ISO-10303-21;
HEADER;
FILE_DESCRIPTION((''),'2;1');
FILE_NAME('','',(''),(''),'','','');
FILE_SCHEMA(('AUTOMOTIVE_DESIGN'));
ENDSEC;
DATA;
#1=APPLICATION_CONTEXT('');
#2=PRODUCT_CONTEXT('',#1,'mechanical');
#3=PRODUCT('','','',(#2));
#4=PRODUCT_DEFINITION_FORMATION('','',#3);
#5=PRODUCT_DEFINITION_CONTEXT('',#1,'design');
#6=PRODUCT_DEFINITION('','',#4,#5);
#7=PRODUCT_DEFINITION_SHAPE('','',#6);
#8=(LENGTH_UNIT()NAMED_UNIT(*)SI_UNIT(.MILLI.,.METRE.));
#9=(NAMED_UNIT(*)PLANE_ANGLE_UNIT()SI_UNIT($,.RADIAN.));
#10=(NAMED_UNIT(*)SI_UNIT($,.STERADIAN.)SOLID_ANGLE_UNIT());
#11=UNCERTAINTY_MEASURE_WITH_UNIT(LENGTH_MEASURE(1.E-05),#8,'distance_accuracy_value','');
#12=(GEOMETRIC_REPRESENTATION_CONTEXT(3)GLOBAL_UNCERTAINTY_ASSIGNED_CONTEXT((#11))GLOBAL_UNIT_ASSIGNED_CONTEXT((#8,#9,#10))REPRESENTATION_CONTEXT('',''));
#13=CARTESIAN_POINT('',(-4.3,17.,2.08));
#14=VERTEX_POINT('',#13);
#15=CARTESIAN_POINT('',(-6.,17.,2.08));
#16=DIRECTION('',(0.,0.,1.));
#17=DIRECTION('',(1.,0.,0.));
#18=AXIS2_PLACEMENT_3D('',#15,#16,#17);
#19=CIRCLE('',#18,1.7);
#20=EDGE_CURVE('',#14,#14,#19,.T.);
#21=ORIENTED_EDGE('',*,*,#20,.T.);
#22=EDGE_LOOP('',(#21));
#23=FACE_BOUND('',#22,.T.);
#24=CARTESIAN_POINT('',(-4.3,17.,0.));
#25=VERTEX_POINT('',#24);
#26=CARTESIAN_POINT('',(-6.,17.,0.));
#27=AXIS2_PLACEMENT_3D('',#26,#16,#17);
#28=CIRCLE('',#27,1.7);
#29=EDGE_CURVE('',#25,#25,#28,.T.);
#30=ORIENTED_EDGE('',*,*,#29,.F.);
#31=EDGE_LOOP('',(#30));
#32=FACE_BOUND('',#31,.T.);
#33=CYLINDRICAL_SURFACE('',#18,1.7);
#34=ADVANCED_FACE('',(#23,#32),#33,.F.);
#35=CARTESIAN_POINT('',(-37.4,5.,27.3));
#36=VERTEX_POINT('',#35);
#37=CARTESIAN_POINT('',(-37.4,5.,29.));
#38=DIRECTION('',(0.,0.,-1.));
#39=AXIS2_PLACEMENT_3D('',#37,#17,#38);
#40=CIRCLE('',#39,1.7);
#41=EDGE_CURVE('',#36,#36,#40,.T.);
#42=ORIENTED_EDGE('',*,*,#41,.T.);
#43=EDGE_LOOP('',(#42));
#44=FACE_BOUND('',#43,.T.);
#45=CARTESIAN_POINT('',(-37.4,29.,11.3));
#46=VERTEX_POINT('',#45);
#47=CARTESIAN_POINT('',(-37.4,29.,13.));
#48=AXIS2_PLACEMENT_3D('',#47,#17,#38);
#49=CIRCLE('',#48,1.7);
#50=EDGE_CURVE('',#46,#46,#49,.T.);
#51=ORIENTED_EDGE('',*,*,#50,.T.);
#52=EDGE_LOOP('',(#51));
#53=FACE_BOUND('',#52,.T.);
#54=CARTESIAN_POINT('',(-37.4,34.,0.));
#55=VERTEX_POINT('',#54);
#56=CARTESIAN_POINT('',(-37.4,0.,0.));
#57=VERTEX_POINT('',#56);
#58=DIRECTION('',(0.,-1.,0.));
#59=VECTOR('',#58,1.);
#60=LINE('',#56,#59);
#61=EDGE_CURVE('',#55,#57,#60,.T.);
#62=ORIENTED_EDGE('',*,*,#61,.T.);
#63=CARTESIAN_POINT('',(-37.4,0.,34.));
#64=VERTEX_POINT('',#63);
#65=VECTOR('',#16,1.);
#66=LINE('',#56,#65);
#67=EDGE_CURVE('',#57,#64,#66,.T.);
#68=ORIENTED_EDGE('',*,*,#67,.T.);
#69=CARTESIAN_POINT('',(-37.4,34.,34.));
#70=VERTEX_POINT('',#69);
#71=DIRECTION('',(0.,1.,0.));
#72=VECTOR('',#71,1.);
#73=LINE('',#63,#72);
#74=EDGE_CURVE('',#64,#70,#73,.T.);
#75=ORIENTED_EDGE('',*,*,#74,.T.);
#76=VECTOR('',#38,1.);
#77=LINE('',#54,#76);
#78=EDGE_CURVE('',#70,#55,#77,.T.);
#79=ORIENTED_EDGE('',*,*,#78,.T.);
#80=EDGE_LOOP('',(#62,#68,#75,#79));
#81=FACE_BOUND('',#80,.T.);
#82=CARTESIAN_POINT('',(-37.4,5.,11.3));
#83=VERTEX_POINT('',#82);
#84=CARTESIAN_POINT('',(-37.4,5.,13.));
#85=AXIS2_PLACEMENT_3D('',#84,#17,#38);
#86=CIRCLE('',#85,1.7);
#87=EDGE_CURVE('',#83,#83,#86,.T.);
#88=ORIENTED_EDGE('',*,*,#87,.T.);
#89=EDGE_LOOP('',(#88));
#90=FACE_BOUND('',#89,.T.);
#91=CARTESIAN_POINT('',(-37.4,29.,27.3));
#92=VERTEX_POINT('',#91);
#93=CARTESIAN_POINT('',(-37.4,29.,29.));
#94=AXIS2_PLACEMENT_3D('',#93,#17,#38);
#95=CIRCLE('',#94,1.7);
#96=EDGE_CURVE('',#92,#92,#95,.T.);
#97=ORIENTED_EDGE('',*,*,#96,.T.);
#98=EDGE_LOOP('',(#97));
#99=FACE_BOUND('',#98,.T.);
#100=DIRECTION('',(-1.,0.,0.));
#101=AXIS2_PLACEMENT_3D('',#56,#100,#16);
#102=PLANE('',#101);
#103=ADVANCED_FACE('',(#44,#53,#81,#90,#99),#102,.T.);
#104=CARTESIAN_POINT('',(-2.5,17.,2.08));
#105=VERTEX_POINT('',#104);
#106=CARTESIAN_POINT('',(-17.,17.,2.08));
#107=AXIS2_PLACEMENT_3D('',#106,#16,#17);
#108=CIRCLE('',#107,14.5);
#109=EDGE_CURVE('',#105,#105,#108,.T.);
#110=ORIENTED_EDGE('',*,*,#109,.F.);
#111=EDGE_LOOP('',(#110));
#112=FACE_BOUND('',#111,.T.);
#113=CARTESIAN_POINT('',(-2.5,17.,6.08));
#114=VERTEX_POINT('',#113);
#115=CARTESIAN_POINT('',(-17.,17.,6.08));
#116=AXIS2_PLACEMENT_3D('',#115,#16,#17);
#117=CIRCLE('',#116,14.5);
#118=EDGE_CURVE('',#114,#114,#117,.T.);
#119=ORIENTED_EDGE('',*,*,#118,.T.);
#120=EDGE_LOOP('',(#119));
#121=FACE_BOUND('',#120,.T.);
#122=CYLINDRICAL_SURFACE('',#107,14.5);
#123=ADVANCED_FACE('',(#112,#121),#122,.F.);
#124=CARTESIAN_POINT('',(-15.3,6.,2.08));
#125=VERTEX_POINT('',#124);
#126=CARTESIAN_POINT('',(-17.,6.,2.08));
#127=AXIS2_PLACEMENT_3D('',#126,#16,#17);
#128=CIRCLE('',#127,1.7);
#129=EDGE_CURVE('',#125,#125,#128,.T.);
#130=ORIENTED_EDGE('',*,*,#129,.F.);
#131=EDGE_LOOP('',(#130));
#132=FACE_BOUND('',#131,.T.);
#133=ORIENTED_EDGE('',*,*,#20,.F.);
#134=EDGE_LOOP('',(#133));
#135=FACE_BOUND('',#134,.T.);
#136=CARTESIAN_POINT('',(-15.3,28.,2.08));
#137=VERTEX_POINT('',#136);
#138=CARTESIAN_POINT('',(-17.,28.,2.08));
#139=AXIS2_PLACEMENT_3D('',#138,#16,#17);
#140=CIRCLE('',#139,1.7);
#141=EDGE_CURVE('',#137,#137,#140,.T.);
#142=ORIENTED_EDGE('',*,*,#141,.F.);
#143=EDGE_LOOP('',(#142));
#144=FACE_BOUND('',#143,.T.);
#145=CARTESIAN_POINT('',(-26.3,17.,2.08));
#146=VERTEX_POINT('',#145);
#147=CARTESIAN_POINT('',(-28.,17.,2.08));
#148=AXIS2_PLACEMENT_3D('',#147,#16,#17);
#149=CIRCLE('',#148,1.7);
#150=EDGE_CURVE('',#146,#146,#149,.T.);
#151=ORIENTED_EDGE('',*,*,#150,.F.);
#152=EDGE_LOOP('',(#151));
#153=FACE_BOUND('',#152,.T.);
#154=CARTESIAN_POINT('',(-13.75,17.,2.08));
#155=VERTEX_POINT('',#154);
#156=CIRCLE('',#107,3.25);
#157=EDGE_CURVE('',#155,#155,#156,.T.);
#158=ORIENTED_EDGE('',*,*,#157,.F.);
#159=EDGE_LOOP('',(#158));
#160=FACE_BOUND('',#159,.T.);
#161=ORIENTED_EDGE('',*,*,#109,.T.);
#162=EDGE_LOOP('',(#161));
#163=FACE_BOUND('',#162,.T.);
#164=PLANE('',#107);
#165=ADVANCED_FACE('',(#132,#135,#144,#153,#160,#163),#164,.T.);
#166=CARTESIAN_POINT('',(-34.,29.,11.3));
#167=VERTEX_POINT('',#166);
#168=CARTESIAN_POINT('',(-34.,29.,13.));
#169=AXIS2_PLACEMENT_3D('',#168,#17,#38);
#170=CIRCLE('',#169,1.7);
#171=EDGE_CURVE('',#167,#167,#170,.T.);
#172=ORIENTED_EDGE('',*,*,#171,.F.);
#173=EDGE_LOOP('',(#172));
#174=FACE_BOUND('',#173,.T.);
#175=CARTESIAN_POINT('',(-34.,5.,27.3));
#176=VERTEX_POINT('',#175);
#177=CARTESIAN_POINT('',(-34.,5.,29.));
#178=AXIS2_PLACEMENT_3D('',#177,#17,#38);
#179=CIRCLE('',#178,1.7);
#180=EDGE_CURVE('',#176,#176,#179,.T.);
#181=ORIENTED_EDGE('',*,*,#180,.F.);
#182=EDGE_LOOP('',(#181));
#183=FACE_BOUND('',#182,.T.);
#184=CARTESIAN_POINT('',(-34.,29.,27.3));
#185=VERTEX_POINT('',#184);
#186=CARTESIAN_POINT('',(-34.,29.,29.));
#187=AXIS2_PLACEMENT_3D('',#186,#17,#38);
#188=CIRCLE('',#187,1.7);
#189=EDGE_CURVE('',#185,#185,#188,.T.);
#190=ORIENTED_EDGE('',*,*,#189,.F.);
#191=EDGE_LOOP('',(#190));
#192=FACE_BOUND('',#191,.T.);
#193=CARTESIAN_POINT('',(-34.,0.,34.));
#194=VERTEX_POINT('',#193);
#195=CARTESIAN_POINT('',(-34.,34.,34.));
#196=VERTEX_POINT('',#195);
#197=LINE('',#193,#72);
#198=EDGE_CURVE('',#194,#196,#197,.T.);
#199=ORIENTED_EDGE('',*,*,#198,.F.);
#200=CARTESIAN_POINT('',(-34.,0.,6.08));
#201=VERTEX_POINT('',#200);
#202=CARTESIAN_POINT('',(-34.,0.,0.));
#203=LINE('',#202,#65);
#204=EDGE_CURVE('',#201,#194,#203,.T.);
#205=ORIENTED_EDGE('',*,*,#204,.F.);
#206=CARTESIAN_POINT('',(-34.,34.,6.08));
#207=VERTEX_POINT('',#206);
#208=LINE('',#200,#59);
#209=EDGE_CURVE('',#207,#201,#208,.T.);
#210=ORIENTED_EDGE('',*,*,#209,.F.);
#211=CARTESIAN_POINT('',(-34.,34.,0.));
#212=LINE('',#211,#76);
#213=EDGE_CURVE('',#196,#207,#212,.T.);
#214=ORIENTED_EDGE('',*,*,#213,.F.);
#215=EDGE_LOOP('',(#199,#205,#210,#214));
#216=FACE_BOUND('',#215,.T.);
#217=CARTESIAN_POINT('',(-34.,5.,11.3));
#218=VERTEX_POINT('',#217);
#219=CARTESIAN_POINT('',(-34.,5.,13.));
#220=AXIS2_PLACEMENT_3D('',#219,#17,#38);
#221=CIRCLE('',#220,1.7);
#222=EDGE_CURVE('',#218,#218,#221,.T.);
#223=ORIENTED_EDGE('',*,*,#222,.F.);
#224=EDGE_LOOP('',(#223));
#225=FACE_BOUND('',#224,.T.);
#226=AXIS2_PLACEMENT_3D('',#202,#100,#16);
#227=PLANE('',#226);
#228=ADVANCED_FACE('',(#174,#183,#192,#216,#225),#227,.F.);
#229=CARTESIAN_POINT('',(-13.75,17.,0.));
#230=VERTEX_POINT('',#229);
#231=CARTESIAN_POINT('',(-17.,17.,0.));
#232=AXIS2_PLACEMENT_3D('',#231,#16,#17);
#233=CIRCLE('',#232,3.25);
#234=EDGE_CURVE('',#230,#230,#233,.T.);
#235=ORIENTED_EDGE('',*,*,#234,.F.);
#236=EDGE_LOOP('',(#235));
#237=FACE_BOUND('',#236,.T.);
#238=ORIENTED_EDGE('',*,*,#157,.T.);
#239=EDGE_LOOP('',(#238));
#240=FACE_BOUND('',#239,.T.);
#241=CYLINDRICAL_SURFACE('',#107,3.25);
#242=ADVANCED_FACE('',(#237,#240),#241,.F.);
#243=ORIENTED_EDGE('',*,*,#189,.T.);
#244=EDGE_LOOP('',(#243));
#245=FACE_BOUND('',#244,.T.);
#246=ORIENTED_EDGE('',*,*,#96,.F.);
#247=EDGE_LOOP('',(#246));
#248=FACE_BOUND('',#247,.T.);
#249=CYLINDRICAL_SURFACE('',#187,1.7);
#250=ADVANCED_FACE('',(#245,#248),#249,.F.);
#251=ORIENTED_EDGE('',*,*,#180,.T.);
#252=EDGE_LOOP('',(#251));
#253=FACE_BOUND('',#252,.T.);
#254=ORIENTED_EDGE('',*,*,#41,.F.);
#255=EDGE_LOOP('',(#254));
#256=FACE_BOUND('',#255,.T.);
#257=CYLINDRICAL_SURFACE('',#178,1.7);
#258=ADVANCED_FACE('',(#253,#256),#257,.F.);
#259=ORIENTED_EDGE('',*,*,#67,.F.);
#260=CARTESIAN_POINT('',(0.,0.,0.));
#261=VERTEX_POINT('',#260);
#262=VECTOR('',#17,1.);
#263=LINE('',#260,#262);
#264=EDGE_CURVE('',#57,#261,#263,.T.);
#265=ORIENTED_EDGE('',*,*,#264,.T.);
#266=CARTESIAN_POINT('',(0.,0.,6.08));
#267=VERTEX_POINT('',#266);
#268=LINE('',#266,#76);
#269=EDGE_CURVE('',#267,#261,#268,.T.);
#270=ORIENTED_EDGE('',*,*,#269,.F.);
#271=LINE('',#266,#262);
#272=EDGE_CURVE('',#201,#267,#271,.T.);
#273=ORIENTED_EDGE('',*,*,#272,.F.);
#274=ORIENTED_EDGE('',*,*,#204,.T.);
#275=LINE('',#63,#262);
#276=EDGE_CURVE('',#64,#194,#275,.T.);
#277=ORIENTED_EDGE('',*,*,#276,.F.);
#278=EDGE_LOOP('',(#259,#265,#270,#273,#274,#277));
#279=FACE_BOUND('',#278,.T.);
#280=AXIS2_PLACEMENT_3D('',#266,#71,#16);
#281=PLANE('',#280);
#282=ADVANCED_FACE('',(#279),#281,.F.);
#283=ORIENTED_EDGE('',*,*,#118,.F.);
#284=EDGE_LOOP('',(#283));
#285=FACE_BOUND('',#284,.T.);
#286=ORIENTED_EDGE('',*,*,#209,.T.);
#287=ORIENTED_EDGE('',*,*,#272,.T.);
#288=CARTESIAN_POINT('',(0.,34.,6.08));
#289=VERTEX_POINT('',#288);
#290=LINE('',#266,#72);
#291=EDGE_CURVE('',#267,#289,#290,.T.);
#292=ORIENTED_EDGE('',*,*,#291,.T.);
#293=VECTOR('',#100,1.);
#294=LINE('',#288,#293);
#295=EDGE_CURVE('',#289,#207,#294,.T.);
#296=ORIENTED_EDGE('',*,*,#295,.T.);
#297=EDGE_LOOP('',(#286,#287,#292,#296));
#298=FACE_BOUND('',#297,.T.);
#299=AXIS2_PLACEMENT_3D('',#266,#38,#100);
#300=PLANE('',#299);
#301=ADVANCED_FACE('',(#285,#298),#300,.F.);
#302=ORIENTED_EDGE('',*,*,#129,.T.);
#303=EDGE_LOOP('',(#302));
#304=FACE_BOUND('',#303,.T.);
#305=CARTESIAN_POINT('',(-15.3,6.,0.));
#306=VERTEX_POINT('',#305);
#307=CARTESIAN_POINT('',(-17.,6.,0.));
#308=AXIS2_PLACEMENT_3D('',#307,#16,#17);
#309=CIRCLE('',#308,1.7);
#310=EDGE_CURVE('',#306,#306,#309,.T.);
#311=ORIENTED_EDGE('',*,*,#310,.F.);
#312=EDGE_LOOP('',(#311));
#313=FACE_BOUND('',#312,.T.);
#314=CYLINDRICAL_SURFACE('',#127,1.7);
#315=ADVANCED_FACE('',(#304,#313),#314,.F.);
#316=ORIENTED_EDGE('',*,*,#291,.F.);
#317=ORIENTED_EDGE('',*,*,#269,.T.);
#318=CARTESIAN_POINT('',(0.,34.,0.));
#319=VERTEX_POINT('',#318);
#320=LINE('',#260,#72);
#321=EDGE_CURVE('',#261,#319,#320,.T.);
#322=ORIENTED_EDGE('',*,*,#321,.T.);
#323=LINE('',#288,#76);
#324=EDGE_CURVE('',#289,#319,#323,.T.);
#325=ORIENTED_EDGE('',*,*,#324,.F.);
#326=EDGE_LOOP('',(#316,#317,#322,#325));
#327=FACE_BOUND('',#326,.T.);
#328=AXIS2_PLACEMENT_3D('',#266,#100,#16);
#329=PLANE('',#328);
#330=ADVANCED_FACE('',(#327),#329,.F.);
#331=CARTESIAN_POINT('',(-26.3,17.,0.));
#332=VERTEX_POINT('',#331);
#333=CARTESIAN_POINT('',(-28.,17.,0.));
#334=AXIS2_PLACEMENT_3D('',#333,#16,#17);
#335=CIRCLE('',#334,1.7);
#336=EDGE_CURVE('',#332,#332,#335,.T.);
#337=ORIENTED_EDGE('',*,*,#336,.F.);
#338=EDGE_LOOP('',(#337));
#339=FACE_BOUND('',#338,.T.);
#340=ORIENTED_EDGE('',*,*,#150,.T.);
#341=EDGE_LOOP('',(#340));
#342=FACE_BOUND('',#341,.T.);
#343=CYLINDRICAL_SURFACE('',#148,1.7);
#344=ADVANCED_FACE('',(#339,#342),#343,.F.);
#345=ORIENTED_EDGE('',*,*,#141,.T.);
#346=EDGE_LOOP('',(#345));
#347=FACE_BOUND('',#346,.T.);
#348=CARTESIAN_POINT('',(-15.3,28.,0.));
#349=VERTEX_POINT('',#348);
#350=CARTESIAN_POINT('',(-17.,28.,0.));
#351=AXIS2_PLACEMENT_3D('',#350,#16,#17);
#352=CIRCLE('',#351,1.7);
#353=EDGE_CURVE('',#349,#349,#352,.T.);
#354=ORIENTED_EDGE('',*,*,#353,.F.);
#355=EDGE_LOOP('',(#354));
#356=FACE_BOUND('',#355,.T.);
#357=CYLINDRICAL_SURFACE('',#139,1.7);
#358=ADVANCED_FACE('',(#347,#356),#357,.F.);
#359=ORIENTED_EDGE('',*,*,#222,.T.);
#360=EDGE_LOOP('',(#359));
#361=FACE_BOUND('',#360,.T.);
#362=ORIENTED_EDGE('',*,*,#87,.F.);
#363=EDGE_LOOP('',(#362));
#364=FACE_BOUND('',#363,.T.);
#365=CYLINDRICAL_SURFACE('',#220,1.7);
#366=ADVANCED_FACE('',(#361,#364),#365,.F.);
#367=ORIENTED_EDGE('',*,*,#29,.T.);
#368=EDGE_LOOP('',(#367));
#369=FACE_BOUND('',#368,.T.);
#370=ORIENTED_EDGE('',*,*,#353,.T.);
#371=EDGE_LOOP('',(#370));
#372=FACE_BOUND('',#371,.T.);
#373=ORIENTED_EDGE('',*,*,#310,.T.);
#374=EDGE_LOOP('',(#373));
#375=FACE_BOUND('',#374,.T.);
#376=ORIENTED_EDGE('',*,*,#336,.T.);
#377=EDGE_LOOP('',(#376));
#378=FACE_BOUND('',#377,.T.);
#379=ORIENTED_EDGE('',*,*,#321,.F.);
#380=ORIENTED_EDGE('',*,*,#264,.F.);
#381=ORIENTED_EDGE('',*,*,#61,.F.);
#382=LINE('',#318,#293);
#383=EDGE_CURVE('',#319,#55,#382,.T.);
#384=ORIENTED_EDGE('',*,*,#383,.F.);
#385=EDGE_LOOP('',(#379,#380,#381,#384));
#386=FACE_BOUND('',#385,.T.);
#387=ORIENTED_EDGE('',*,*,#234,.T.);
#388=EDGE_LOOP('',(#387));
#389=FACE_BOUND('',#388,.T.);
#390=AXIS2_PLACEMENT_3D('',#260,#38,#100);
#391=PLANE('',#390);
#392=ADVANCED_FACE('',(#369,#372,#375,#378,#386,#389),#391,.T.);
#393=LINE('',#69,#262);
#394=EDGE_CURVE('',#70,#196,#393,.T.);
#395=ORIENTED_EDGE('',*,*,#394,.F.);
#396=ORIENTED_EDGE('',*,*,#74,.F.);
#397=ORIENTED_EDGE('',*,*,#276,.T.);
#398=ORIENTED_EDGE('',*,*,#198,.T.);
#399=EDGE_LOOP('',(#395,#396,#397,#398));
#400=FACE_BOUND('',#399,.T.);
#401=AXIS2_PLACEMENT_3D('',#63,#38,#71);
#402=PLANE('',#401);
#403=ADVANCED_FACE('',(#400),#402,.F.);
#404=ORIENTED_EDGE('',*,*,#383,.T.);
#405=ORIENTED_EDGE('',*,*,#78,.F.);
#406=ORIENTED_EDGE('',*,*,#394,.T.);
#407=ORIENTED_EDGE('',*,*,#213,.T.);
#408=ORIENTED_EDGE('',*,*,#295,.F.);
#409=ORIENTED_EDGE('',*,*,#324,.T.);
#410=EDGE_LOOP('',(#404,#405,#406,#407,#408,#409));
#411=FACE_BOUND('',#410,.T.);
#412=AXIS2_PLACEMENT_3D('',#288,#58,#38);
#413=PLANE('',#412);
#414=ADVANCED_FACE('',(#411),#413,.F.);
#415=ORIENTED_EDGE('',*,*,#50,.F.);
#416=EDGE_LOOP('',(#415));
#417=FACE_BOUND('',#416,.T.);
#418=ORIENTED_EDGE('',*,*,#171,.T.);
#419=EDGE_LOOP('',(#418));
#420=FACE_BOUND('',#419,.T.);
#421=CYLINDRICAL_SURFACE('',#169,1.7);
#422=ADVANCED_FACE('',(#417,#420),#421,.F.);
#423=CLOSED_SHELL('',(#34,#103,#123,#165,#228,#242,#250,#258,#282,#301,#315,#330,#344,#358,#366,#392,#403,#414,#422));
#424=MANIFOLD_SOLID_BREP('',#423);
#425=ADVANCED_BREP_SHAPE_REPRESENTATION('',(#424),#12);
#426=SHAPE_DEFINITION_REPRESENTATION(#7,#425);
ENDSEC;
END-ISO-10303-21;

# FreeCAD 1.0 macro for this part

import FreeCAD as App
import Part
import Sketcher
from FreeCAD import Vector

doc = App.newDocument("Part")
body = doc.addObject("PartDesign::Body", "Body")

# Sketch on XY plane
sketch1 = body.newObject("Sketcher::SketchObject", "Sketch")
sketch1.AttachmentSupport = (doc.getObject("XY_Plane"), [""])
sketch1.MapMode = "FlatFace"
sketch1.addGeometry(Part.LineSegment(Vector(-34, 0, 0), Vector(0, 0, 0)), False)
sketch1.addGeometry(Part.LineSegment(Vector(0, 0, 0), Vector(0, 34, 0)), False)
sketch1.addGeometry(Part.LineSegment(Vector(0, 34, 0), Vector(-34, 34, 0)), False)
sketch1.addGeometry(Part.LineSegment(Vector(-34, 34, 0), Vector(-34, 0, 0)), False)
sketch1.addConstraint(Sketcher.Constraint("Coincident", 0, 2, 1, 1))
sketch1.addConstraint(Sketcher.Constraint("Coincident", 1, 2, 2, 1))
sketch1.addConstraint(Sketcher.Constraint("Coincident", 2, 2, 3, 1))
sketch1.addConstraint(Sketcher.Constraint("Coincident", 3, 2, 0, 1))
sketch1.addConstraint(Sketcher.Constraint("Horizontal", 0))
sketch1.addConstraint(Sketcher.Constraint("Vertical", 1))
sketch1.addConstraint(Sketcher.Constraint("Horizontal", 2))
sketch1.addConstraint(Sketcher.Constraint("Vertical", 3))
sketch1.addConstraint(Sketcher.Constraint("Coincident", 0, 2, -1, 1))
sketch1.addConstraint(Sketcher.Constraint("Equal", 2, 1))
sketch1.addConstraint(Sketcher.Constraint("DistanceX", 0, 1, 0, 2, 34.0))
pad1 = body.newObject("PartDesign::Pad", "Pad")
pad1.Profile = sketch1
pad1.Length = 6.08

# Sketch on YZ plane
sketch2 = body.newObject("Sketcher::SketchObject", "Sketch001")
sketch2.AttachmentSupport = (doc.getObject("YZ_Plane"), [""])
sketch2.MapMode = "FlatFace"
sketch2.AttachmentOffset = App.Placement(Vector(0, 0, -34), App.Rotation())
sketch2.addGeometry(Part.LineSegment(Vector(34, 34, 0), Vector(34, 0, 0)), False)
sketch2.addGeometry(Part.LineSegment(Vector(34, 0, 0), Vector(0, 0, 0)), False)
sketch2.addGeometry(Part.LineSegment(Vector(0, 0, 0), Vector(0, 34, 0)), False)
sketch2.addGeometry(Part.LineSegment(Vector(0, 34, 0), Vector(34, 34, 0)), False)
sketch2.addConstraint(Sketcher.Constraint("Coincident", 0, 2, 1, 1))
sketch2.addConstraint(Sketcher.Constraint("Coincident", 1, 2, 2, 1))
sketch2.addConstraint(Sketcher.Constraint("Coincident", 2, 2, 3, 1))
sketch2.addConstraint(Sketcher.Constraint("Coincident", 3, 2, 0, 1))
sketch2.addConstraint(Sketcher.Constraint("Vertical", 0))
sketch2.addConstraint(Sketcher.Constraint("Horizontal", 1))
sketch2.addConstraint(Sketcher.Constraint("Vertical", 2))
sketch2.addConstraint(Sketcher.Constraint("Horizontal", 3))
sketch2.addConstraint(Sketcher.Constraint("Coincident", 1, 2, -1, 1))
sketch2.addConstraint(Sketcher.Constraint("Equal", 3, 0))
sketch2.addConstraint(Sketcher.Constraint("DistanceX", 1, 2, 1, 1, 34.0))
pad2 = body.newObject("PartDesign::Pad", "Pad001")
pad2.Profile = sketch2
pad2.Length = 3.4
pad2.Reversed = True

# Sketch on YZ plane
sketch3 = body.newObject("Sketcher::SketchObject", "Sketch002")
sketch3.AttachmentSupport = (doc.getObject("YZ_Plane"), [""])
sketch3.MapMode = "FlatFace"
sketch3.AttachmentOffset = App.Placement(Vector(0, 0, -34), App.Rotation())
sketch3.addGeometry(Part.Circle(Vector(5, 29, 0), Vector(0, 0, 1), 1.7), False)
sketch3.addGeometry(Part.Circle(Vector(29, 29, 0), Vector(0, 0, 1), 1.7), False)
sketch3.addGeometry(Part.Circle(Vector(5, 13, 0), Vector(0, 0, 1), 1.7), False)
sketch3.addGeometry(Part.Circle(Vector(29, 13, 0), Vector(0, 0, 1), 1.7), False)
sketch3.addConstraint(Sketcher.Constraint("Equal", 0, 1))
sketch3.addConstraint(Sketcher.Constraint("Equal", 1, 2))
sketch3.addConstraint(Sketcher.Constraint("Equal", 2, 3))
sketch3.addConstraint(Sketcher.Constraint("Horizontal", 0, 3, 1, 3))
sketch3.addConstraint(Sketcher.Constraint("Horizontal", 2, 3, 3, 3))
sketch3.addConstraint(Sketcher.Constraint("Vertical", 0, 3, 2, 3))
sketch3.addConstraint(Sketcher.Constraint("Vertical", 1, 3, 3, 3))
sketch3.addConstraint(Sketcher.Constraint("Diameter", 0, 3.4))
sketch3.addConstraint(Sketcher.Constraint("DistanceX", -1, 1, 0, 3, 5.0))
sketch3.addConstraint(Sketcher.Constraint("DistanceY", -1, 1, 0, 3, 29.0))
sketch3.addConstraint(Sketcher.Constraint("DistanceX", -1, 1, 1, 3, 29.0))
sketch3.addConstraint(Sketcher.Constraint("DistanceY", -1, 1, 2, 3, 13.0))
doc.recompute()
hole = body.newObject("PartDesign::Hole", "Hole")
hole.Profile = sketch3
hole.ThreadType = "None"
hole.Diameter = 3.4
hole.DepthType = "ThroughAll"

# Sketch on XY plane
sketch4 = body.newObject("Sketcher::SketchObject", "Sketch003")
sketch4.AttachmentSupport = (doc.getObject("XY_Plane"), [""])
sketch4.MapMode = "FlatFace"
sketch4.AttachmentOffset = App.Placement(Vector(0, 0, 6.08), App.Rotation())
sketch4.addGeometry(Part.Circle(Vector(-17, 17, 0), Vector(0, 0, 1), 14), False)
sketch4.addConstraint(Sketcher.Constraint("Diameter", 0, 29.0))
sketch4.addConstraint(Sketcher.Constraint("DistanceX", 0, 3, -1, 1, 17.0))
sketch4.addConstraint(Sketcher.Constraint("DistanceY", -1, 1, 0, 3, 17.0))
pocket1 = body.newObject("PartDesign::Pocket", "Pocket")
pocket1.Profile = sketch4
pocket1.Length = 4

# Sketch on XY plane
sketch5 = body.newObject("Sketcher::SketchObject", "Sketch004")
sketch5.AttachmentSupport = (doc.getObject("XY_Plane"), [""])
sketch5.MapMode = "FlatFace"
sketch5.AttachmentOffset = App.Placement(Vector(0, 0, 2.08), App.Rotation())
sketch5.addGeometry(Part.Circle(Vector(-6, 17, 0), Vector(0, 0, 1), 1.7), False)
sketch5.addGeometry(Part.Circle(Vector(-17, 6, 0), Vector(0, 0, 1), 1.7), False)
sketch5.addGeometry(Part.Circle(Vector(-28, 17, 0), Vector(0, 0, 1), 1.7), False)
sketch5.addGeometry(Part.Circle(Vector(-17, 28, 0), Vector(0, 0, 1), 1.7), False)
sketch5.addConstraint(Sketcher.Constraint("Equal", 0, 1))
sketch5.addConstraint(Sketcher.Constraint("Equal", 1, 2))
sketch5.addConstraint(Sketcher.Constraint("Equal", 2, 3))
sketch5.addConstraint(Sketcher.Constraint("Horizontal", 0, 3, 2, 3))
sketch5.addConstraint(Sketcher.Constraint("Vertical", 1, 3, 3, 3))
sketch5.addConstraint(Sketcher.Constraint("Diameter", 0, 3.4))
sketch5.addConstraint(Sketcher.Constraint("DistanceX", 0, 3, -1, 1, 6.0))
sketch5.addConstraint(Sketcher.Constraint("DistanceY", -1, 1, 0, 3, 17.0))
sketch5.addConstraint(Sketcher.Constraint("DistanceX", 1, 3, -1, 1, 17.0))
sketch5.addConstraint(Sketcher.Constraint("DistanceY", -1, 1, 1, 3, 6.0))
sketch5.addConstraint(Sketcher.Constraint("DistanceX", 2, 3, -1, 1, 28.0))
sketch5.addConstraint(Sketcher.Constraint("DistanceY", -1, 1, 3, 3, 28.0))
doc.recompute()
hole2 = body.newObject("PartDesign::Hole", "Hole001")
hole2.Profile = sketch5
hole2.ThreadType = "None"
hole2.Diameter = 3.4
hole2.DepthType = "ThroughAll"

# Sketch on XY plane
sketch6 = body.newObject("Sketcher::SketchObject", "Sketch005")
sketch6.AttachmentSupport = (doc.getObject("XY_Plane"), [""])
sketch6.MapMode = "FlatFace"
sketch6.AttachmentOffset = App.Placement(Vector(0, 0, 2.08), App.Rotation())
sketch6.addGeometry(Part.Circle(Vector(-17, 17, 0), Vector(0, 0, 1), 3.2), False)
sketch6.addConstraint(Sketcher.Constraint("Diameter", 0, 6.5))
sketch6.addConstraint(Sketcher.Constraint("DistanceX", 0, 3, -1, 1, 17.0))
sketch6.addConstraint(Sketcher.Constraint("DistanceY", -1, 1, 0, 3, 17.0))
doc.recompute()
hole3 = body.newObject("PartDesign::Hole", "Hole002")
hole3.Profile = sketch6
hole3.ThreadType = "None"
hole3.Diameter = 6.5
hole3.DepthType = "ThroughAll"

doc.recompute()
